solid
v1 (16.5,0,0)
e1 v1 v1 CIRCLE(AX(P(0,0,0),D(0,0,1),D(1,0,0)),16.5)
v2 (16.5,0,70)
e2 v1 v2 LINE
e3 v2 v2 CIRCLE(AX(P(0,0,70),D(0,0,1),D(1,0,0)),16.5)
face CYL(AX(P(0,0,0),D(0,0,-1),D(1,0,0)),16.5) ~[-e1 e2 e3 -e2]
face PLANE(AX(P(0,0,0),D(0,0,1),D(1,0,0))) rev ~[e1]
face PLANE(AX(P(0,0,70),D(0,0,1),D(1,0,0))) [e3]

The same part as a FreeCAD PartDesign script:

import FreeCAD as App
import Part
import Sketcher

V = App.Vector

doc = App.newDocument("Part")
body = doc.addObject("PartDesign::Body", "Body")

sketch1 = doc.addObject("Sketcher::SketchObject", "Sketch")
body.addObject(sketch1)
sketch1.AttachmentSupport = (doc.XY_Plane, [""])
sketch1.MapMode = "FlatFace"
sketch1.addGeometry(Part.Circle(V(0, 0, 0), V(0, 0, 1), 16), False)
sketch1.addConstraint(Sketcher.Constraint("Coincident", 0, 3, -1, 1))
sketch1.addConstraint(Sketcher.Constraint("Diameter", 0, 33.0))
pad1 = doc.addObject("PartDesign::Pad", "Pad")
body.addObject(pad1)
pad1.Profile = sketch1
pad1.Length = 70

doc.recompute()
